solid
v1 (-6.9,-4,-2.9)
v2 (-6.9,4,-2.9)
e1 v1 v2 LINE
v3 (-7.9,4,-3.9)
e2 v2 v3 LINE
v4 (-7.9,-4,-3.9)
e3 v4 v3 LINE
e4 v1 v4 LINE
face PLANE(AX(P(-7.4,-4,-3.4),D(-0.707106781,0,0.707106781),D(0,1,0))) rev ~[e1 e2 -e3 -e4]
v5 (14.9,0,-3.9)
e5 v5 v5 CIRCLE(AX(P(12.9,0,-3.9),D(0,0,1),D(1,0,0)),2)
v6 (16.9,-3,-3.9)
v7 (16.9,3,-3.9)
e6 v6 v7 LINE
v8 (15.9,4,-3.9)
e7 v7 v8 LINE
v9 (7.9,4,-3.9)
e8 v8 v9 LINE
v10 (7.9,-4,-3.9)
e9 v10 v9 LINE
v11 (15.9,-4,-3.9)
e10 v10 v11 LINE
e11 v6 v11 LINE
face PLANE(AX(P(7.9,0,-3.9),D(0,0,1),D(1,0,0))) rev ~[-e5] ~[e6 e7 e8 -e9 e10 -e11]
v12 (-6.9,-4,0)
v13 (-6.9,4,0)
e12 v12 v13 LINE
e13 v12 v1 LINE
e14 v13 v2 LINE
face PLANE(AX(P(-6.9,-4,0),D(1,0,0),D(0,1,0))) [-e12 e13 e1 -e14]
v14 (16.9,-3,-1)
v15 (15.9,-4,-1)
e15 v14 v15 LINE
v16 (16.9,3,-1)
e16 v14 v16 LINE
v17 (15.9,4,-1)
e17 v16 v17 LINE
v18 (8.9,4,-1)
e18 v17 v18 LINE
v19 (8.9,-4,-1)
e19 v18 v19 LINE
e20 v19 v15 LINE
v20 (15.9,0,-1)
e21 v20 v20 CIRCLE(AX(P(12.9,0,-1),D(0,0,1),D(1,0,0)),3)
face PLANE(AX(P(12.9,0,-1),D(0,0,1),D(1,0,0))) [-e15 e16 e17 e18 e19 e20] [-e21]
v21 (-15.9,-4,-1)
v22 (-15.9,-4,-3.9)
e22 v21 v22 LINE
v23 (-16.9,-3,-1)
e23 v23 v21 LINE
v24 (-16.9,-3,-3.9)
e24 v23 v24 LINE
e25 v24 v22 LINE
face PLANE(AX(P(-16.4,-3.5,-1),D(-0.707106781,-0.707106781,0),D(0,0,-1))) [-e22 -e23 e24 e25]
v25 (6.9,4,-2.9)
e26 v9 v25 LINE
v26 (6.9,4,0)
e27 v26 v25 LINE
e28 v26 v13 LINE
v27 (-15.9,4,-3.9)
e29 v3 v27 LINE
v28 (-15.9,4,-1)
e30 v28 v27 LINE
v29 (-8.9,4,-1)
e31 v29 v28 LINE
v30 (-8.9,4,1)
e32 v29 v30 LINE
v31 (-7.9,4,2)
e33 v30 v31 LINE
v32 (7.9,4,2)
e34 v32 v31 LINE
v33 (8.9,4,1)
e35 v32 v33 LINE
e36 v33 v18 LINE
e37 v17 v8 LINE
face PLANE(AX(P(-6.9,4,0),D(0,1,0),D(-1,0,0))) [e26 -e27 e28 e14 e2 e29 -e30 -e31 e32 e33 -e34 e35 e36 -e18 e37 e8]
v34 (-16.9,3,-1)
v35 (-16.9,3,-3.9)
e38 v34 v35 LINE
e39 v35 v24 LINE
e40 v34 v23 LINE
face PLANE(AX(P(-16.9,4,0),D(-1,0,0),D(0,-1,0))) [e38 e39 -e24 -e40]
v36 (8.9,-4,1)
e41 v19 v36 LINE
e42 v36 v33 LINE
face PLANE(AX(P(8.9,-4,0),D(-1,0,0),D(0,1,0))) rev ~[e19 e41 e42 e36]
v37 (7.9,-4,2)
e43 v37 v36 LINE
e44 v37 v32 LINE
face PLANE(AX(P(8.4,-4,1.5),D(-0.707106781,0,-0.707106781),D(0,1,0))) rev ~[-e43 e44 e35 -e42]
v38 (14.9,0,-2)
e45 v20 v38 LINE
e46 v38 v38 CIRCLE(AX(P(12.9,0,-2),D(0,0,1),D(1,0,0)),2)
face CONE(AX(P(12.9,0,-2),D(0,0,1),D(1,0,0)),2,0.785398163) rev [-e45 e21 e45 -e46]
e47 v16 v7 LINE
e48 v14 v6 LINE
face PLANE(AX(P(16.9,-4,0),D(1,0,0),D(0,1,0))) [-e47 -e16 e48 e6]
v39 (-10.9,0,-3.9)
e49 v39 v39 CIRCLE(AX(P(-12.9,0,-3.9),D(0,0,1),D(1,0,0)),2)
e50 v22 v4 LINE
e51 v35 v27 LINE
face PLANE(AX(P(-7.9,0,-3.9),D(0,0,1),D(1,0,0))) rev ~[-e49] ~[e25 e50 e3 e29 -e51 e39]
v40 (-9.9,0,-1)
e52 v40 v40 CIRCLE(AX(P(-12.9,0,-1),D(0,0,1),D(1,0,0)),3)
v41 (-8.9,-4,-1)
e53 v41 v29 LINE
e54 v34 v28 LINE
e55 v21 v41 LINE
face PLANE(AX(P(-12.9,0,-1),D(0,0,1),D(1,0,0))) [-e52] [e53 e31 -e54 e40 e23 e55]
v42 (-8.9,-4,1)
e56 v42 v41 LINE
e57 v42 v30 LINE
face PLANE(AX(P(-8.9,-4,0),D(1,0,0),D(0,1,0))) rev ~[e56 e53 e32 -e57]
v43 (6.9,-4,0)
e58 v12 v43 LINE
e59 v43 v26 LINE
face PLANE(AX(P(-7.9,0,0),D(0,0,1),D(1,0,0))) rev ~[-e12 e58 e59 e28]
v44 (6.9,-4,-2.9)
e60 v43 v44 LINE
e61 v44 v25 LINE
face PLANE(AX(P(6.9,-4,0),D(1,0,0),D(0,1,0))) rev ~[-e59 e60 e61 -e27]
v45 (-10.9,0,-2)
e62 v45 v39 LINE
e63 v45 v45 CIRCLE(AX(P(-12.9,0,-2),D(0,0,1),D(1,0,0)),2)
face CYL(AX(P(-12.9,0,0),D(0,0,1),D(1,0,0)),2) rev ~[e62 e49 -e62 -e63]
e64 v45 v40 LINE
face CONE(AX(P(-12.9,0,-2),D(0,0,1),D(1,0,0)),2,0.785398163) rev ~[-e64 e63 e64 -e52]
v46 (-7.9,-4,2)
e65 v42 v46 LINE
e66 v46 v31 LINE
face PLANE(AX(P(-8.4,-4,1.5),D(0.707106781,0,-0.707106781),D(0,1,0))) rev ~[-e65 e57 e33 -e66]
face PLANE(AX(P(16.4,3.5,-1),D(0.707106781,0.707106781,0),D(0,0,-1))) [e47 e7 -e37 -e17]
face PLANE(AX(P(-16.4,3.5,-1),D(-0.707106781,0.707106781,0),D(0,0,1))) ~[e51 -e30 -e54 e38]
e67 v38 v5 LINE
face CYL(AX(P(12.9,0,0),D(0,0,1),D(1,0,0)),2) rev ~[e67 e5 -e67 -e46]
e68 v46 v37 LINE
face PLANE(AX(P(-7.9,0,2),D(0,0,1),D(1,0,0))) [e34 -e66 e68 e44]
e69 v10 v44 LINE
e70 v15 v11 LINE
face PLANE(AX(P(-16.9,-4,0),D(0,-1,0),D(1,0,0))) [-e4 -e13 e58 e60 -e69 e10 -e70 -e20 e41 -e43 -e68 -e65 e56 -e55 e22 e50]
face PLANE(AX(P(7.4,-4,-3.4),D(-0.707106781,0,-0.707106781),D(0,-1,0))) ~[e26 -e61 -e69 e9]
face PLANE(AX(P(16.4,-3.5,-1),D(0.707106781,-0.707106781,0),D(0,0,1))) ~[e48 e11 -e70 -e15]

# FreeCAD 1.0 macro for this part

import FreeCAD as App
import Part
import Sketcher
Q = App.Units.Quantity


def edges_at(feature, points):
    """Names of the edges that pass closest to the given points."""
    edges = feature.Shape.Edges
    near = lambda p: min(range(len(edges)), key=lambda i: edges[i].distToShape(Part.Vertex(*p))[0])
    return sorted({f"Edge{near(p) + 1}" for p in points})

doc = App.newDocument("Part")
body = doc.addObject("PartDesign::Body", "Body")

# Sketch on XY plane
sketch1 = doc.addObject("Sketcher::SketchObject", "Sketch")
body.addObject(sketch1)
sketch1.AttachmentSupport = (doc.XY_Plane, [""])
sketch1.MapMode = "FlatFace"
sketch1.addGeometry(Part.LineSegment(App.Vector(-9, 4, 0), App.Vector(-9, -4, 0)), False)
sketch1.addGeometry(Part.LineSegment(App.Vector(-9, -4, 0), App.Vector(9, -4, 0)), False)
sketch1.addGeometry(Part.LineSegment(App.Vector(9, -4, 0), App.Vector(9, 4, 0)), False)
sketch1.addGeometry(Part.LineSegment(App.Vector(9, 4, 0), App.Vector(-9, 4, 0)), False)
sketch1.addConstraint(Sketcher.Constraint("Coincident", 0, 2, 1, 1))
sketch1.addConstraint(Sketcher.Constraint("Coincident", 1, 2, 2, 1))
sketch1.addConstraint(Sketcher.Constraint("Coincident", 2, 2, 3, 1))
sketch1.addConstraint(Sketcher.Constraint("Coincident", 3, 2, 0, 1))
sketch1.addConstraint(Sketcher.Constraint("Vertical", 0))
sketch1.addConstraint(Sketcher.Constraint("Horizontal", 1))
sketch1.addConstraint(Sketcher.Constraint("Vertical", 2))
sketch1.addConstraint(Sketcher.Constraint("Horizontal", 3))
sketch1.addConstraint(Sketcher.Constraint("Symmetric", 0, 2, 2, 2, -1, 1))
sketch1.addConstraint(Sketcher.Constraint("DistanceY", 0, 2, 0, 1, Q("8 mm")))
sketch1.addConstraint(Sketcher.Constraint("DistanceX", 1, 1, 1, 2, Q("17.8 mm")))
pad1 = doc.addObject("PartDesign::Pad", "Pad")
body.addObject(pad1)
pad1.Profile = sketch1
pad1.Length = 2

# Sketch on XY plane
sketch2 = doc.addObject("Sketcher::SketchObject", "Sketch001")
body.addObject(sketch2)
sketch2.AttachmentSupport = (doc.XY_Plane, [""])
sketch2.MapMode = "FlatFace"
sketch2.addGeometry(Part.LineSegment(App.Vector(-6.9, -4, 0), App.Vector(-6.9, 4, 0)), False)
sketch2.addGeometry(Part.LineSegment(App.Vector(-6.9, 4, 0), App.Vector(-16.9, 4, 0)), False)
sketch2.addGeometry(Part.LineSegment(App.Vector(-16.9, 4, 0), App.Vector(-16.9, -4, 0)), False)
sketch2.addGeometry(Part.LineSegment(App.Vector(-16.9, -4, 0), App.Vector(-6.9, -4, 0)), False)
sketch2.addGeometry(Part.Circle(App.Vector(-12.9, 0, 0), App.Vector(0, 0, 1), 2), False)
sketch2.addGeometry(Part.LineSegment(App.Vector(6.9, 4, 0), App.Vector(6.9, -4, 0)), False)
sketch2.addGeometry(Part.LineSegment(App.Vector(6.9, -4, 0), App.Vector(16.9, -4, 0)), False)
sketch2.addGeometry(Part.LineSegment(App.Vector(16.9, -4, 0), App.Vector(16.9, 4, 0)), False)
sketch2.addGeometry(Part.LineSegment(App.Vector(16.9, 4, 0), App.Vector(6.9, 4, 0)), False)
sketch2.addGeometry(Part.Circle(App.Vector(12.9, 0, 0), App.Vector(0, 0, 1), 2), False)
sketch2.addConstraint(Sketcher.Constraint("Coincident", 0, 2, 1, 1))
sketch2.addConstraint(Sketcher.Constraint("Coincident", 1, 2, 2, 1))
sketch2.addConstraint(Sketcher.Constraint("Coincident", 2, 2, 3, 1))
sketch2.addConstraint(Sketcher.Constraint("Coincident", 3, 2, 0, 1))
sketch2.addConstraint(Sketcher.Constraint("Coincident", 5, 2, 6, 1))
sketch2.addConstraint(Sketcher.Constraint("Coincident", 6, 2, 7, 1))
sketch2.addConstraint(Sketcher.Constraint("Coincident", 7, 2, 8, 1))
sketch2.addConstraint(Sketcher.Constraint("Coincident", 8, 2, 5, 1))
sketch2.addConstraint(Sketcher.Constraint("Vertical", 0))
sketch2.addConstraint(Sketcher.Constraint("Horizontal", 1))
sketch2.addConstraint(Sketcher.Constraint("Vertical", 2))
sketch2.addConstraint(Sketcher.Constraint("Horizontal", 3))
sketch2.addConstraint(Sketcher.Constraint("Vertical", 5))
sketch2.addConstraint(Sketcher.Constraint("Horizontal", 6))
sketch2.addConstraint(Sketcher.Constraint("Vertical", 7))
sketch2.addConstraint(Sketcher.Constraint("Horizontal", 8))
sketch2.addConstraint(Sketcher.Constraint("Equal", 4, 9))
sketch2.addConstraint(Sketcher.Constraint("Symmetric", 4, 3, 9, 3, -1, 1))
sketch2.addConstraint(Sketcher.Constraint("Symmetric", 0, 2, 5, 2, -1, 1))
sketch2.addConstraint(Sketcher.Constraint("Symmetric", 2, 2, 7, 2, -1, 1))
sketch2.addConstraint(Sketcher.Constraint("PointOnObject", 4, 3, -1))
sketch2.addConstraint(Sketcher.Constraint("Horizontal", 3, 2, 5, 2))
sketch2.addConstraint(Sketcher.Constraint("Diameter", 4, Q("4 mm")))
sketch2.addConstraint(Sketcher.Constraint("DistanceX", 1, 2, 1, 1, Q("10 mm")))
sketch2.addConstraint(Sketcher.Constraint("DistanceY", 0, 1, 0, 2, Q("8 mm")))
sketch2.addConstraint(Sketcher.Constraint("DistanceX", 4, 3, 0, 2, Q("6 mm")))
sketch2.addConstraint(Sketcher.Constraint("DistanceX", 4, 3, -1, 1, Q("12.9 mm")))
pad2 = doc.addObject("PartDesign::Pad", "Pad001")
body.addObject(pad2)
pad2.Profile = sketch2
pad2.Length = 3.9
pad2.Reversed = True

# Sketch on XY plane
sketch3 = doc.addObject("Sketcher::SketchObject", "Sketch002")
body.addObject(sketch3)
sketch3.AttachmentSupport = (doc.XY_Plane, [""])
sketch3.MapMode = "FlatFace"
sketch3.addGeometry(Part.LineSegment(App.Vector(-16.9, -4, 0), App.Vector(-8.9, -4, 0)), False)
sketch3.addGeometry(Part.LineSegment(App.Vector(-8.9, -4, 0), App.Vector(-8.9, 4, 0)), False)
sketch3.addGeometry(Part.LineSegment(App.Vector(-8.9, 4, 0), App.Vector(-16.9, 4, 0)), False)
sketch3.addGeometry(Part.LineSegment(App.Vector(-16.9, 4, 0), App.Vector(-16.9, -4, 0)), False)
sketch3.addGeometry(Part.Circle(App.Vector(-12.9, 0, 0), App.Vector(0, 0, 1), 2), False)
sketch3.addGeometry(Part.LineSegment(App.Vector(8.9, 4, 0), App.Vector(8.9, -4, 0)), False)
sketch3.addGeometry(Part.LineSegment(App.Vector(8.9, -4, 0), App.Vector(16.9, -4, 0)), False)
sketch3.addGeometry(Part.LineSegment(App.Vector(16.9, -4, 0), App.Vector(16.9, 4, 0)), False)
sketch3.addGeometry(Part.LineSegment(App.Vector(16.9, 4, 0), App.Vector(8.9, 4, 0)), False)
sketch3.addGeometry(Part.Circle(App.Vector(12.9, 0, 0), App.Vector(0, 0, 1), 2), False)
sketch3.addConstraint(Sketcher.Constraint("Coincident", 0, 2, 1, 1))
sketch3.addConstraint(Sketcher.Constraint("Coincident", 1, 2, 2, 1))
sketch3.addConstraint(Sketcher.Constraint("Coincident", 2, 2, 3, 1))
sketch3.addConstraint(Sketcher.Constraint("Coincident", 3, 2, 0, 1))
sketch3.addConstraint(Sketcher.Constraint("Coincident", 5, 2, 6, 1))
sketch3.addConstraint(Sketcher.Constraint("Coincident", 6, 2, 7, 1))
sketch3.addConstraint(Sketcher.Constraint("Coincident", 7, 2, 8, 1))
sketch3.addConstraint(Sketcher.Constraint("Coincident", 8, 2, 5, 1))
sketch3.addConstraint(Sketcher.Constraint("Horizontal", 0))
sketch3.addConstraint(Sketcher.Constraint("Vertical", 1))
sketch3.addConstraint(Sketcher.Constraint("Horizontal", 2))
sketch3.addConstraint(Sketcher.Constraint("Vertical", 3))
sketch3.addConstraint(Sketcher.Constraint("Vertical", 5))
sketch3.addConstraint(Sketcher.Constraint("Horizontal", 6))
sketch3.addConstraint(Sketcher.Constraint("Vertical", 7))
sketch3.addConstraint(Sketcher.Constraint("Horizontal", 8))
sketch3.addConstraint(Sketcher.Constraint("Equal", 4, 9))
sketch3.addConstraint(Sketcher.Constraint("Symmetric", 4, 3, 9, 3, -1, 1))
sketch3.addConstraint(Sketcher.Constraint("Symmetric", 1, 2, 5, 2, -1, 1))
sketch3.addConstraint(Sketcher.Constraint("Symmetric", 3, 2, 7, 2, -1, 1))
sketch3.addConstraint(Sketcher.Constraint("PointOnObject", 4, 3, -1))
sketch3.addConstraint(Sketcher.Constraint("Horizontal", 3, 2, 5, 2))
sketch3.addConstraint(Sketcher.Constraint("Equal", 8, 1))
sketch3.addConstraint(Sketcher.Constraint("Diameter", 4, Q("4 mm")))
sketch3.addConstraint(Sketcher.Constraint("DistanceX", 0, 1, 0, 2, Q("8 mm")))
sketch3.addConstraint(Sketcher.Constraint("DistanceX", 4, 3, 0, 2, Q("4 mm")))
sketch3.addConstraint(Sketcher.Constraint("DistanceX", 4, 3, -1, 1, Q("12.9 mm")))
pocket1 = doc.addObject("PartDesign::Pocket", "Pocket")
body.addObject(pocket1)
pocket1.Profile = sketch3
pocket1.Length = 1
doc.recompute()

chamfer = doc.addObject("PartDesign::Chamfer", "Chamfer")
body.addObject(chamfer)
chamfer.Base = (pocket1, edges_at(pocket1, [
    (-8.9, 0, 2),
    (8.9, 0, 2),
    (-6.9, 0, -3.9),
    (-14.9, 0, -1),
    (10.9, 0, -1),
    (6.9, 0, -3.9),
    (-16.9, -4, -2.45),
    (-16.9, 4, -2.45),
    (16.9, -4, -2.45),
    (16.9, 4, -2.45),
]))
chamfer.Size = 1

doc.recompute()
